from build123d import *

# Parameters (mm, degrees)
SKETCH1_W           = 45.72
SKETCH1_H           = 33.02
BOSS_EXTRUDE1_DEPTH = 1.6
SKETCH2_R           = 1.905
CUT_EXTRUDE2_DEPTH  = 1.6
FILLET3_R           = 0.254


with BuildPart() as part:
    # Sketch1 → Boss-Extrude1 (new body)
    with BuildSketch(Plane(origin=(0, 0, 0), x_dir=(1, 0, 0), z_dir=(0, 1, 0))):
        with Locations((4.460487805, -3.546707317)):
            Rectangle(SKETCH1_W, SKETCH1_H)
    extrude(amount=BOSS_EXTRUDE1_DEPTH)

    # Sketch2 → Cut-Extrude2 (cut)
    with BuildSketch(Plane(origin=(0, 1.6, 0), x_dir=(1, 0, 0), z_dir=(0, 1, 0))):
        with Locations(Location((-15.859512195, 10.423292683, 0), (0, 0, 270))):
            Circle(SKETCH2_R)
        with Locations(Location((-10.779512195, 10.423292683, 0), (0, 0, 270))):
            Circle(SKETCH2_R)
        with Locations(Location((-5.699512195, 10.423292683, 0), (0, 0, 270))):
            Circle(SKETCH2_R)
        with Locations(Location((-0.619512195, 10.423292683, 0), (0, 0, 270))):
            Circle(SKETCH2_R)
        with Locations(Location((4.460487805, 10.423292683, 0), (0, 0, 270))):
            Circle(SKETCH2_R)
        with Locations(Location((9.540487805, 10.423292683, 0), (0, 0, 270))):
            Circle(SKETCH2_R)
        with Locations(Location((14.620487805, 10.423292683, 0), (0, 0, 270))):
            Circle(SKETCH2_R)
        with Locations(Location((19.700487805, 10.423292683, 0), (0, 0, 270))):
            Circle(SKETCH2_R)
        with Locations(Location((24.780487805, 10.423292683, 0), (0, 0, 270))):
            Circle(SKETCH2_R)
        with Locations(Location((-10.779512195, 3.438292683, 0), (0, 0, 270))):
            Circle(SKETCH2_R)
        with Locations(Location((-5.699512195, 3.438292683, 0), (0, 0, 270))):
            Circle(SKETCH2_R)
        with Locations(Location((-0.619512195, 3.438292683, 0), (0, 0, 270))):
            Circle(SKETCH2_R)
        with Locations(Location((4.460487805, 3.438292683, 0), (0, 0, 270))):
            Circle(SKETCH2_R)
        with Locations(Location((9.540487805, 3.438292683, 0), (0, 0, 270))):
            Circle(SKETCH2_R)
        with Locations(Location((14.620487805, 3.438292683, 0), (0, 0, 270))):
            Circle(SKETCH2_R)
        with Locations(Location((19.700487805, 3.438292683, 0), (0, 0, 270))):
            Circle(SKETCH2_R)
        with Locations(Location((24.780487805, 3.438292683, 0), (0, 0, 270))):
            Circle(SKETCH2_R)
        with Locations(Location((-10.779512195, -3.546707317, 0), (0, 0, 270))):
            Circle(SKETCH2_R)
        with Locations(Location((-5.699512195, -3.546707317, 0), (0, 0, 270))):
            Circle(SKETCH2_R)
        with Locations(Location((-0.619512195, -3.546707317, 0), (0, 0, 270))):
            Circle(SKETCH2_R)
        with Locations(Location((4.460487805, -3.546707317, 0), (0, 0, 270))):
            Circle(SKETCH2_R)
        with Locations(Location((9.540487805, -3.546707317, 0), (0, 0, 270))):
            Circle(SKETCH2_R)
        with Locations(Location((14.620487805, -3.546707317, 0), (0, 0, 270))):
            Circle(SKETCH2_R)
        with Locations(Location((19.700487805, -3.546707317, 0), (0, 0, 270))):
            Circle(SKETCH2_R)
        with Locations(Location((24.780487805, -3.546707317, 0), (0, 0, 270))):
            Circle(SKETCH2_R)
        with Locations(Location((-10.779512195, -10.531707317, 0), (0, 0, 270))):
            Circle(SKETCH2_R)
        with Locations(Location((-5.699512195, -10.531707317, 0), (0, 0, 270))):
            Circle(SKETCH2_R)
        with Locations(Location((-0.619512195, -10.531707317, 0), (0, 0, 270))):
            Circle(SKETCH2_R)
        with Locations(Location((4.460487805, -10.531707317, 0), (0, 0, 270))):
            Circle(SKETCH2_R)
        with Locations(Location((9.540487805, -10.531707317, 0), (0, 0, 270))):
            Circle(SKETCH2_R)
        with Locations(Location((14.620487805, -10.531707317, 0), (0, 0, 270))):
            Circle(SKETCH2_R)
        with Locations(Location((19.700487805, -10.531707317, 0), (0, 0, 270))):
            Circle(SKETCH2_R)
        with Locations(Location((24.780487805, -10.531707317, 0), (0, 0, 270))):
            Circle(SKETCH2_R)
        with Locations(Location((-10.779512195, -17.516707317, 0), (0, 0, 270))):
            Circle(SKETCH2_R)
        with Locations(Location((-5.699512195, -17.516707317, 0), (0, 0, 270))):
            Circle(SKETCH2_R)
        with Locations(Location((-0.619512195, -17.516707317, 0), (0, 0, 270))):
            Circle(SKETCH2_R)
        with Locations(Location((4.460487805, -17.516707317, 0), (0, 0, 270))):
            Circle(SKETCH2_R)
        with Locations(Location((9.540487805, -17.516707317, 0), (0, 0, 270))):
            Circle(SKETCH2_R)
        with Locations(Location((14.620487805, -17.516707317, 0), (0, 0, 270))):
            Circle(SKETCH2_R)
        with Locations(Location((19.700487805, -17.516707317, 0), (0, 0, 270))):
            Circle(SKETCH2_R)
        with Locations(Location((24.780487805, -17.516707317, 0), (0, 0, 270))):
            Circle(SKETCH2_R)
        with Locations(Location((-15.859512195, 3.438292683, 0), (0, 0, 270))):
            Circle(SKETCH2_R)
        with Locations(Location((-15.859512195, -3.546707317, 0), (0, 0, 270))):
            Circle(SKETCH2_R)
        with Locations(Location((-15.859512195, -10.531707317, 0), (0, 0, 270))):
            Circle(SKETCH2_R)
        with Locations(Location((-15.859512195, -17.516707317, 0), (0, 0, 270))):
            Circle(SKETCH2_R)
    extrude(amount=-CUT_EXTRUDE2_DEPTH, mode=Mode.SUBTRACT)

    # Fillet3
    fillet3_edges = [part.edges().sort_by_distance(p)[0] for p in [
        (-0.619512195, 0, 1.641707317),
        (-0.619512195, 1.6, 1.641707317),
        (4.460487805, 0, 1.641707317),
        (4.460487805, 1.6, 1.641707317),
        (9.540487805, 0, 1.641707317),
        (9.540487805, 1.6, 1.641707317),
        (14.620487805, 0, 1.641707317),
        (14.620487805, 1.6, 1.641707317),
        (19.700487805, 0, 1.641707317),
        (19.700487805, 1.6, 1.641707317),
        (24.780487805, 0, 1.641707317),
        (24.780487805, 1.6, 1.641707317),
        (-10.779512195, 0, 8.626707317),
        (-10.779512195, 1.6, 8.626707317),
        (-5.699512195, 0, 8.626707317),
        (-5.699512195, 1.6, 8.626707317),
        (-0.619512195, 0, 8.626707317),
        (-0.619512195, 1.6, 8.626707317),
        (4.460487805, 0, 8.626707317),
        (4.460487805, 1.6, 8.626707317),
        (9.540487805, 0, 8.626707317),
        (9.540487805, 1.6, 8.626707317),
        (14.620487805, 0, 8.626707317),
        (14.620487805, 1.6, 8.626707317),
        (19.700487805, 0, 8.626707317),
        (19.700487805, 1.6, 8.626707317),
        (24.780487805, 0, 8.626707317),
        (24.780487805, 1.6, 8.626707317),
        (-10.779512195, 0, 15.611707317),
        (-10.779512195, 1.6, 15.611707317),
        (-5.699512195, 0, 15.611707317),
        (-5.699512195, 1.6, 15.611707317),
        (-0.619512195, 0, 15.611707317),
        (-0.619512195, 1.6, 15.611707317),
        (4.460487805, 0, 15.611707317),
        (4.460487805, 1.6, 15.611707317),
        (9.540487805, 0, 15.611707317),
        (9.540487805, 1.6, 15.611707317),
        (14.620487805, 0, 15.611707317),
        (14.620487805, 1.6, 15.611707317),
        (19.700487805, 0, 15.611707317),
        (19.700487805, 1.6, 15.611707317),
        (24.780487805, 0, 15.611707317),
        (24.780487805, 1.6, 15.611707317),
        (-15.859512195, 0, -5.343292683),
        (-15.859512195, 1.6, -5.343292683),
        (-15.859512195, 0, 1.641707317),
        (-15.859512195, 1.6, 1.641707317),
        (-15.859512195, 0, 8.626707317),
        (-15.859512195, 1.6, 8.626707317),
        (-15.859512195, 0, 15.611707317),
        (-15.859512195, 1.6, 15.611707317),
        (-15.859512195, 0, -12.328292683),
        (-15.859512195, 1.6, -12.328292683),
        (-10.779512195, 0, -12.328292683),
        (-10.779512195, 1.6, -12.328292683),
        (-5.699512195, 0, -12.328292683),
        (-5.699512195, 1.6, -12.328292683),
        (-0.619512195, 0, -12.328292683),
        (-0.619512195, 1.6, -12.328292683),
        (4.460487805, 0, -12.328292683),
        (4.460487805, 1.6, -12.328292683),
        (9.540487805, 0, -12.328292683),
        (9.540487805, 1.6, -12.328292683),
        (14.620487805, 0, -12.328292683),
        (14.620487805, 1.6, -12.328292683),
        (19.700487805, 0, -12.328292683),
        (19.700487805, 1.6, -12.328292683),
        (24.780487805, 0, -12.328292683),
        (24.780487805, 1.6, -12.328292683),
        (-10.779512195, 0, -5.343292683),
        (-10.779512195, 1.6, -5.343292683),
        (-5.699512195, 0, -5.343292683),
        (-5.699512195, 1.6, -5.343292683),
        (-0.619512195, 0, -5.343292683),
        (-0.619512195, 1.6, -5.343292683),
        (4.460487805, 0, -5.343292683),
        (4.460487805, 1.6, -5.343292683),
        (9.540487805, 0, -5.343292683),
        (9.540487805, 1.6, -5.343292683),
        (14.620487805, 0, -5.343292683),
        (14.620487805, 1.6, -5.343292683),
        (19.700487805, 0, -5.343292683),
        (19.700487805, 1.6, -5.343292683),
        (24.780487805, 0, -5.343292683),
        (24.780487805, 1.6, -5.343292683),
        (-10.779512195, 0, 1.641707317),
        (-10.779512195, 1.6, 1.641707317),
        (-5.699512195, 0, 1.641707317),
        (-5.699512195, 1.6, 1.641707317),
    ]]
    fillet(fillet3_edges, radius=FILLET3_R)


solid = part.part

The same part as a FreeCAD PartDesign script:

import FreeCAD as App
import Part
import Sketcher

V = App.Vector
Q = App.Units.Quantity


def edges_at(feature, points):
    """Names of the edges that pass closest to the given points."""
    edges = feature.Shape.Edges
    near = lambda p: min(range(len(edges)), key=lambda i: edges[i].distToShape(Part.Vertex(*p))[0])
    return sorted({f"Edge{near(p) + 1}" for p in points})


def add_polygon(sketch, points):
    """Adds a closed chain of lines whose ends are joined by coincident constraints."""
    first, n = sketch.GeometryCount, len(points)
    for a, b in zip(points, points[1:] + points[:1]):
        sketch.addGeometry(Part.LineSegment(App.Vector(*a, 0), App.Vector(*b, 0)), False)
    for i in range(n):
        sketch.addConstraint(Sketcher.Constraint("Coincident", first + i, 2, first + (i + 1) % n, 1))

doc = App.newDocument("Part")
body = doc.addObject("PartDesign::Body", "Body")

# Sketch on XZ plane
sketch1 = body.newObject("Sketcher::SketchObject", "Sketch")
sketch1.AttachmentSupport = (doc.getObject("XZ_Plane"), [""])
sketch1.MapMode = "FlatFace"
add_polygon(sketch1, [(-18, -13), (-18, 20), (27, 20), (27, -13)])  # lines 0-3
sketch1.addConstraint([
    Sketcher.Constraint("Vertical", 0),
    Sketcher.Constraint("Horizontal", 1),
    Sketcher.Constraint("Vertical", 2),
    Sketcher.Constraint("Horizontal", 3),
    Sketcher.Constraint("DistanceX", 1, 1, 1, 2, Q("1.8 in")),
    Sketcher.Constraint("DistanceY", 0, 1, 0, 2, Q("1.3 in")),
    Sketcher.Constraint("DistanceX", 0, 2, -1, 1, 18.399512),
    Sketcher.Constraint("DistanceY", -1, 1, 0, 2, 20.056707),
])
pad1 = body.newObject("PartDesign::Pad", "Pad")
pad1.Profile = sketch1
pad1.Length = 1.6
pad1.Reversed = True

# Sketch on XZ plane
sketch2 = body.newObject("Sketcher::SketchObject", "Sketch001")
sketch2.AttachmentSupport = (doc.getObject("XZ_Plane"), [""])
sketch2.MapMode = "FlatFace"
sketch2.AttachmentOffset = App.Placement(V(0, 0, -1.6), App.Rotation())
sketch2.addGeometry([
    Part.Circle(V(-15.9, -10.4, 0), V(0, 0, 1), 1.9),  # 0
    Part.Circle(V(-10.8, -10.4, 0), V(0, 0, 1), 1.9),  # 1
    Part.Circle(V(-5.7, -10.4, 0), V(0, 0, 1), 1.9),  # 2
    Part.Circle(V(-0.6, -10.4, 0), V(0, 0, 1), 1.9),  # 3
    Part.Circle(V(4.5, -10.4, 0), V(0, 0, 1), 1.9),  # 4
    Part.Circle(V(9.5, -10.4, 0), V(0, 0, 1), 1.9),  # 5
    Part.Circle(V(14.6, -10.4, 0), V(0, 0, 1), 1.9),  # 6
    Part.Circle(V(19.7, -10.4, 0), V(0, 0, 1), 1.9),  # 7
    Part.Circle(V(24.8, -10.4, 0), V(0, 0, 1), 1.9),  # 8
    Part.Circle(V(-10.8, -3.4, 0), V(0, 0, 1), 1.9),  # 9
    Part.Circle(V(-5.7, -3.4, 0), V(0, 0, 1), 1.9),  # 10
    Part.Circle(V(-0.6, -3.4, 0), V(0, 0, 1), 1.9),  # 11
    Part.Circle(V(4.5, -3.4, 0), V(0, 0, 1), 1.9),  # 12
    Part.Circle(V(9.5, -3.4, 0), V(0, 0, 1), 1.9),  # 13
    Part.Circle(V(14.6, -3.4, 0), V(0, 0, 1), 1.9),  # 14
    Part.Circle(V(19.7, -3.4, 0), V(0, 0, 1), 1.9),  # 15
    Part.Circle(V(24.8, -3.4, 0), V(0, 0, 1), 1.9),  # 16
    Part.Circle(V(-10.8, 3.5, 0), V(0, 0, 1), 1.9),  # 17
    Part.Circle(V(-5.7, 3.5, 0), V(0, 0, 1), 1.9),  # 18
    Part.Circle(V(-0.6, 3.5, 0), V(0, 0, 1), 1.9),  # 19
    Part.Circle(V(4.5, 3.5, 0), V(0, 0, 1), 1.9),  # 20
    Part.Circle(V(9.5, 3.5, 0), V(0, 0, 1), 1.9),  # 21
    Part.Circle(V(14.6, 3.5, 0), V(0, 0, 1), 1.9),  # 22
    Part.Circle(V(19.7, 3.5, 0), V(0, 0, 1), 1.9),  # 23
    Part.Circle(V(24.8, 3.5, 0), V(0, 0, 1), 1.9),  # 24
    Part.Circle(V(-10.8, 10.5, 0), V(0, 0, 1), 1.9),  # 25
    Part.Circle(V(-5.7, 10.5, 0), V(0, 0, 1), 1.9),  # 26
    Part.Circle(V(-0.6, 10.5, 0), V(0, 0, 1), 1.9),  # 27
    Part.Circle(V(4.5, 10.5, 0), V(0, 0, 1), 1.9),  # 28
    Part.Circle(V(9.5, 10.5, 0), V(0, 0, 1), 1.9),  # 29
    Part.Circle(V(14.6, 10.5, 0), V(0, 0, 1), 1.9),  # 30
    Part.Circle(V(19.7, 10.5, 0), V(0, 0, 1), 1.9),  # 31
    Part.Circle(V(24.8, 10.5, 0), V(0, 0, 1), 1.9),  # 32
    Part.Circle(V(-10.8, 17.5, 0), V(0, 0, 1), 1.9),  # 33
    Part.Circle(V(-5.7, 17.5, 0), V(0, 0, 1), 1.9),  # 34
    Part.Circle(V(-0.6, 17.5, 0), V(0, 0, 1), 1.9),  # 35
    Part.Circle(V(4.5, 17.5, 0), V(0, 0, 1), 1.9),  # 36
    Part.Circle(V(9.5, 17.5, 0), V(0, 0, 1), 1.9),  # 37
    Part.Circle(V(14.6, 17.5, 0), V(0, 0, 1), 1.9),  # 38
    Part.Circle(V(19.7, 17.5, 0), V(0, 0, 1), 1.9),  # 39
    Part.Circle(V(24.8, 17.5, 0), V(0, 0, 1), 1.9),  # 40
    Part.Circle(V(-15.9, -3.4, 0), V(0, 0, 1), 1.9),  # 41
    Part.Circle(V(-15.9, 3.5, 0), V(0, 0, 1), 1.9),  # 42
    Part.Circle(V(-15.9, 10.5, 0), V(0, 0, 1), 1.9),  # 43
    Part.Circle(V(-15.9, 17.5, 0), V(0, 0, 1), 1.9),  # 44
], False)
sketch2.addConstraint([
    Sketcher.Constraint("Equal", 0, 1),
    Sketcher.Constraint("Equal", 1, 2),
    Sketcher.Constraint("Equal", 2, 3),
    Sketcher.Constraint("Equal", 3, 4),
    Sketcher.Constraint("Equal", 4, 5),
    Sketcher.Constraint("Equal", 5, 6),
    Sketcher.Constraint("Equal", 6, 7),
    Sketcher.Constraint("Equal", 7, 8),
    Sketcher.Constraint("Equal", 8, 9),
    Sketcher.Constraint("Equal", 9, 10),
    Sketcher.Constraint("Equal", 10, 11),
    Sketcher.Constraint("Equal", 11, 12),
    Sketcher.Constraint("Equal", 12, 13),
    Sketcher.Constraint("Equal", 13, 14),
    Sketcher.Constraint("Equal", 14, 15),
    Sketcher.Constraint("Equal", 15, 16),
    Sketcher.Constraint("Equal", 16, 17),
    Sketcher.Constraint("Equal", 17, 18),
    Sketcher.Constraint("Equal", 18, 19),
    Sketcher.Constraint("Equal", 19, 20),
    Sketcher.Constraint("Equal", 20, 21),
    Sketcher.Constraint("Equal", 21, 22),
    Sketcher.Constraint("Equal", 22, 23),
    Sketcher.Constraint("Equal", 23, 24),
    Sketcher.Constraint("Equal", 24, 25),
    Sketcher.Constraint("Equal", 25, 26),
    Sketcher.Constraint("Equal", 26, 27),
    Sketcher.Constraint("Equal", 27, 28),
    Sketcher.Constraint("Equal", 28, 29),
    Sketcher.Constraint("Equal", 29, 30),
    Sketcher.Constraint("Equal", 30, 31),
    Sketcher.Constraint("Equal", 31, 32),
    Sketcher.Constraint("Equal", 32, 33),
    Sketcher.Constraint("Equal", 33, 34),
    Sketcher.Constraint("Equal", 34, 35),
    Sketcher.Constraint("Equal", 35, 36),
    Sketcher.Constraint("Equal", 36, 37),
    Sketcher.Constraint("Equal", 37, 38),
    Sketcher.Constraint("Equal", 38, 39),
    Sketcher.Constraint("Equal", 39, 40),
    Sketcher.Constraint("Equal", 40, 41),
    Sketcher.Constraint("Equal", 41, 42),
    Sketcher.Constraint("Equal", 42, 43),
    Sketcher.Constraint("Equal", 43, 44),
    Sketcher.Constraint("Horizontal", 0, 3, 1, 3),
    Sketcher.Constraint("Horizontal", 1, 3, 2, 3),
    Sketcher.Constraint("Horizontal", 2, 3, 3, 3),
    Sketcher.Constraint("Horizontal", 3, 3, 4, 3),
    Sketcher.Constraint("Horizontal", 4, 3, 5, 3),
    Sketcher.Constraint("Horizontal", 5, 3, 6, 3),
    Sketcher.Constraint("Horizontal", 6, 3, 7, 3),
    Sketcher.Constraint("Horizontal", 7, 3, 8, 3),
    Sketcher.Constraint("Horizontal", 9, 3, 10, 3),
    Sketcher.Constraint("Horizontal", 10, 3, 11, 3),
    Sketcher.Constraint("Horizontal", 11, 3, 12, 3),
    Sketcher.Constraint("Horizontal", 12, 3, 13, 3),
    Sketcher.Constraint("Horizontal", 13, 3, 14, 3),
    Sketcher.Constraint("Horizontal", 14, 3, 15, 3),
    Sketcher.Constraint("Horizontal", 15, 3, 16, 3),
    Sketcher.Constraint("Horizontal", 17, 3, 18, 3),
    Sketcher.Constraint("Horizontal", 18, 3, 19, 3),
    Sketcher.Constraint("Horizontal", 19, 3, 20, 3),
    Sketcher.Constraint("Horizontal", 20, 3, 21, 3),
    Sketcher.Constraint("Horizontal", 21, 3, 22, 3),
    Sketcher.Constraint("Horizontal", 22, 3, 23, 3),
    Sketcher.Constraint("Horizontal", 23, 3, 24, 3),
    Sketcher.Constraint("Horizontal", 25, 3, 26, 3),
    Sketcher.Constraint("Horizontal", 26, 3, 27, 3),
    Sketcher.Constraint("Horizontal", 27, 3, 28, 3),
    Sketcher.Constraint("Horizontal", 28, 3, 29, 3),
    Sketcher.Constraint("Horizontal", 29, 3, 30, 3),
    Sketcher.Constraint("Horizontal", 30, 3, 31, 3),
    Sketcher.Constraint("Horizontal", 31, 3, 32, 3),
    Sketcher.Constraint("Horizontal", 33, 3, 34, 3),
    Sketcher.Constraint("Horizontal", 34, 3, 35, 3),
    Sketcher.Constraint("Horizontal", 35, 3, 36, 3),
    Sketcher.Constraint("Horizontal", 36, 3, 37, 3),
    Sketcher.Constraint("Horizontal", 37, 3, 38, 3),
    Sketcher.Constraint("Horizontal", 38, 3, 39, 3),
    Sketcher.Constraint("Horizontal", 39, 3, 40, 3),
    Sketcher.Constraint("Horizontal", 16, 3, 41, 3),
    Sketcher.Constraint("Horizontal", 24, 3, 42, 3),
    Sketcher.Constraint("Horizontal", 32, 3, 43, 3),
    Sketcher.Constraint("Horizontal", 40, 3, 44, 3),
    Sketcher.Constraint("Vertical", 1, 3, 9, 3),
    Sketcher.Constraint("Vertical", 2, 3, 10, 3),
    Sketcher.Constraint("Vertical", 3, 3, 11, 3),
    Sketcher.Constraint("Vertical", 4, 3, 12, 3),
    Sketcher.Constraint("Vertical", 5, 3, 13, 3),
    Sketcher.Constraint("Vertical", 6, 3, 14, 3),
    Sketcher.Constraint("Vertical", 7, 3, 15, 3),
    Sketcher.Constraint("Vertical", 8, 3, 16, 3),
    Sketcher.Constraint("Vertical", 9, 3, 17, 3),
    Sketcher.Constraint("Vertical", 10, 3, 18, 3),
    Sketcher.Constraint("Vertical", 11, 3, 19, 3),
    Sketcher.Constraint("Vertical", 12, 3, 20, 3),
    Sketcher.Constraint("Vertical", 13, 3, 21, 3),
    Sketcher.Constraint("Vertical", 14, 3, 22, 3),
    Sketcher.Constraint("Vertical", 15, 3, 23, 3),
    Sketcher.Constraint("Vertical", 16, 3, 24, 3),
    Sketcher.Constraint("Vertical", 17, 3, 25, 3),
    Sketcher.Constraint("Vertical", 18, 3, 26, 3),
    Sketcher.Constraint("Vertical", 19, 3, 27, 3),
    Sketcher.Constraint("Vertical", 20, 3, 28, 3),
    Sketcher.Constraint("Vertical", 21, 3, 29, 3),
    Sketcher.Constraint("Vertical", 22, 3, 30, 3),
    Sketcher.Constraint("Vertical", 23, 3, 31, 3),
    Sketcher.Constraint("Vertical", 24, 3, 32, 3),
    Sketcher.Constraint("Vertical", 25, 3, 33, 3),
    Sketcher.Constraint("Vertical", 26, 3, 34, 3),
    Sketcher.Constraint("Vertical", 27, 3, 35, 3),
    Sketcher.Constraint("Vertical", 28, 3, 36, 3),
    Sketcher.Constraint("Vertical", 29, 3, 37, 3),
    Sketcher.Constraint("Vertical", 30, 3, 38, 3),
    Sketcher.Constraint("Vertical", 31, 3, 39, 3),
    Sketcher.Constraint("Vertical", 32, 3, 40, 3),
    Sketcher.Constraint("Vertical", 0, 3, 41, 3),
    Sketcher.Constraint("Vertical", 41, 3, 42, 3),
    Sketcher.Constraint("Vertical", 42, 3, 43, 3),
    Sketcher.Constraint("Vertical", 43, 3, 44, 3),
    Sketcher.Constraint("Diameter", 0, Q("0.15 in")),
    Sketcher.Constraint("DistanceX", 0, 3, 5, 3, Q("1 in")),
    Sketcher.Constraint("DistanceX", 1, 3, 6, 3, Q("1 in")),
    Sketcher.Constraint("DistanceX", 2, 3, 7, 3, Q("1 in")),
    Sketcher.Constraint("DistanceX", 3, 3, 8, 3, Q("1 in")),
    Sketcher.Constraint("DistanceX", 0, 3, 1, 3, Q("0.2 in")),
    Sketcher.Constraint("DistanceX", 1, 3, 2, 3, Q("0.2 in")),
    Sketcher.Constraint("DistanceX", 2, 3, 3, 3, Q("0.2 in")),
    Sketcher.Constraint("DistanceX", 3, 3, 4, 3, Q("0.2 in")),
    Sketcher.Constraint("DistanceY", 1, 3, 17, 3, Q("0.55 in")),
    Sketcher.Constraint("DistanceY", 9, 3, 25, 3, Q("0.55 in")),
    Sketcher.Constraint("DistanceY", 17, 3, 33, 3, Q("0.55 in")),
    Sketcher.Constraint("DistanceY", 1, 3, 9, 3, Q("0.275 in")),
    Sketcher.Constraint("DistanceX", 0, 3, -1, 1, 15.859512),
    Sketcher.Constraint("DistanceY", 0, 3, -1, 1, 10.423293),
])
pocket1 = body.newObject("PartDesign::Pocket", "Pocket")
pocket1.Profile = sketch2
pocket1.Length = 1.6
pocket1.Reversed = True
doc.recompute()

fillet = body.newObject("PartDesign::Fillet", "Fillet")
fillet.Base = (pocket1, edges_at(pocket1, [
    (-0.62, 0, 1.642),
    (-0.62, 1.6, 1.642),
    (4.46, 0, 1.642),
    (4.46, 1.6, 1.642),
    (9.54, 0, 1.642),
    (9.54, 1.6, 1.642),
    (14.62, 0, 1.642),
    (14.62, 1.6, 1.642),
    (19.7, 0, 1.642),
    (19.7, 1.6, 1.642),
    (24.78, 0, 1.642),
    (24.78, 1.6, 1.642),
    (-10.78, 0, 8.627),
    (-10.78, 1.6, 8.627),
    (-5.7, 0, 8.627),
    (-5.7, 1.6, 8.627),
    (-0.62, 0, 8.627),
    (-0.62, 1.6, 8.627),
    (4.46, 0, 8.627),
    (4.46, 1.6, 8.627),
    (9.54, 0, 8.627),
    (9.54, 1.6, 8.627),
    (14.62, 0, 8.627),
    (14.62, 1.6, 8.627),
    (19.7, 0, 8.627),
    (19.7, 1.6, 8.627),
    (24.78, 0, 8.627),
    (24.78, 1.6, 8.627),
    (-10.78, 0, 15.612),
    (-10.78, 1.6, 15.612),
    (-5.7, 0, 15.612),
    (-5.7, 1.6, 15.612),
    (-0.62, 0, 15.612),
    (-0.62, 1.6, 15.612),
    (4.46, 0, 15.612),
    (4.46, 1.6, 15.612),
    (9.54, 0, 15.612),
    (9.54, 1.6, 15.612),
    (14.62, 0, 15.612),
    (14.62, 1.6, 15.612),
    (19.7, 0, 15.612),
    (19.7, 1.6, 15.612),
    (24.78, 0, 15.612),
    (24.78, 1.6, 15.612),
    (-15.86, 0, -5.343),
    (-15.86, 1.6, -5.343),
    (-15.86, 0, 1.642),
    (-15.86, 1.6, 1.642),
    (-15.86, 0, 8.627),
    (-15.86, 1.6, 8.627),
    (-15.86, 0, 15.612),
    (-15.86, 1.6, 15.612),
    (-15.86, 0, -12.328),
    (-15.86, 1.6, -12.328),
    (-10.78, 0, -12.328),
    (-10.78, 1.6, -12.328),
    (-5.7, 0, -12.328),
    (-5.7, 1.6, -12.328),
    (-0.62, 0, -12.328),
    (-0.62, 1.6, -12.328),
    (4.46, 0, -12.328),
    (4.46, 1.6, -12.328),
    (9.54, 0, -12.328),
    (9.54, 1.6, -12.328),
    (14.62, 0, -12.328),
    (14.62, 1.6, -12.328),
    (19.7, 0, -12.328),
    (19.7, 1.6, -12.328),
    (24.78, 0, -12.328),
    (24.78, 1.6, -12.328),
    (-10.78, 0, -5.343),
    (-10.78, 1.6, -5.343),
    (-5.7, 0, -5.343),
    (-5.7, 1.6, -5.343),
    (-0.62, 0, -5.343),
    (-0.62, 1.6, -5.343),
    (4.46, 0, -5.343),
    (4.46, 1.6, -5.343),
    (9.54, 0, -5.343),
    (9.54, 1.6, -5.343),
    (14.62, 0, -5.343),
    (14.62, 1.6, -5.343),
    (19.7, 0, -5.343),
    (19.7, 1.6, -5.343),
    (24.78, 0, -5.343),
    (24.78, 1.6, -5.343),
    (-10.78, 0, 1.642),
    (-10.78, 1.6, 1.642),
    (-5.7, 0, 1.642),
    (-5.7, 1.6, 1.642),
]))
fillet.Radius = Q("0.01 in")

doc.recompute()
